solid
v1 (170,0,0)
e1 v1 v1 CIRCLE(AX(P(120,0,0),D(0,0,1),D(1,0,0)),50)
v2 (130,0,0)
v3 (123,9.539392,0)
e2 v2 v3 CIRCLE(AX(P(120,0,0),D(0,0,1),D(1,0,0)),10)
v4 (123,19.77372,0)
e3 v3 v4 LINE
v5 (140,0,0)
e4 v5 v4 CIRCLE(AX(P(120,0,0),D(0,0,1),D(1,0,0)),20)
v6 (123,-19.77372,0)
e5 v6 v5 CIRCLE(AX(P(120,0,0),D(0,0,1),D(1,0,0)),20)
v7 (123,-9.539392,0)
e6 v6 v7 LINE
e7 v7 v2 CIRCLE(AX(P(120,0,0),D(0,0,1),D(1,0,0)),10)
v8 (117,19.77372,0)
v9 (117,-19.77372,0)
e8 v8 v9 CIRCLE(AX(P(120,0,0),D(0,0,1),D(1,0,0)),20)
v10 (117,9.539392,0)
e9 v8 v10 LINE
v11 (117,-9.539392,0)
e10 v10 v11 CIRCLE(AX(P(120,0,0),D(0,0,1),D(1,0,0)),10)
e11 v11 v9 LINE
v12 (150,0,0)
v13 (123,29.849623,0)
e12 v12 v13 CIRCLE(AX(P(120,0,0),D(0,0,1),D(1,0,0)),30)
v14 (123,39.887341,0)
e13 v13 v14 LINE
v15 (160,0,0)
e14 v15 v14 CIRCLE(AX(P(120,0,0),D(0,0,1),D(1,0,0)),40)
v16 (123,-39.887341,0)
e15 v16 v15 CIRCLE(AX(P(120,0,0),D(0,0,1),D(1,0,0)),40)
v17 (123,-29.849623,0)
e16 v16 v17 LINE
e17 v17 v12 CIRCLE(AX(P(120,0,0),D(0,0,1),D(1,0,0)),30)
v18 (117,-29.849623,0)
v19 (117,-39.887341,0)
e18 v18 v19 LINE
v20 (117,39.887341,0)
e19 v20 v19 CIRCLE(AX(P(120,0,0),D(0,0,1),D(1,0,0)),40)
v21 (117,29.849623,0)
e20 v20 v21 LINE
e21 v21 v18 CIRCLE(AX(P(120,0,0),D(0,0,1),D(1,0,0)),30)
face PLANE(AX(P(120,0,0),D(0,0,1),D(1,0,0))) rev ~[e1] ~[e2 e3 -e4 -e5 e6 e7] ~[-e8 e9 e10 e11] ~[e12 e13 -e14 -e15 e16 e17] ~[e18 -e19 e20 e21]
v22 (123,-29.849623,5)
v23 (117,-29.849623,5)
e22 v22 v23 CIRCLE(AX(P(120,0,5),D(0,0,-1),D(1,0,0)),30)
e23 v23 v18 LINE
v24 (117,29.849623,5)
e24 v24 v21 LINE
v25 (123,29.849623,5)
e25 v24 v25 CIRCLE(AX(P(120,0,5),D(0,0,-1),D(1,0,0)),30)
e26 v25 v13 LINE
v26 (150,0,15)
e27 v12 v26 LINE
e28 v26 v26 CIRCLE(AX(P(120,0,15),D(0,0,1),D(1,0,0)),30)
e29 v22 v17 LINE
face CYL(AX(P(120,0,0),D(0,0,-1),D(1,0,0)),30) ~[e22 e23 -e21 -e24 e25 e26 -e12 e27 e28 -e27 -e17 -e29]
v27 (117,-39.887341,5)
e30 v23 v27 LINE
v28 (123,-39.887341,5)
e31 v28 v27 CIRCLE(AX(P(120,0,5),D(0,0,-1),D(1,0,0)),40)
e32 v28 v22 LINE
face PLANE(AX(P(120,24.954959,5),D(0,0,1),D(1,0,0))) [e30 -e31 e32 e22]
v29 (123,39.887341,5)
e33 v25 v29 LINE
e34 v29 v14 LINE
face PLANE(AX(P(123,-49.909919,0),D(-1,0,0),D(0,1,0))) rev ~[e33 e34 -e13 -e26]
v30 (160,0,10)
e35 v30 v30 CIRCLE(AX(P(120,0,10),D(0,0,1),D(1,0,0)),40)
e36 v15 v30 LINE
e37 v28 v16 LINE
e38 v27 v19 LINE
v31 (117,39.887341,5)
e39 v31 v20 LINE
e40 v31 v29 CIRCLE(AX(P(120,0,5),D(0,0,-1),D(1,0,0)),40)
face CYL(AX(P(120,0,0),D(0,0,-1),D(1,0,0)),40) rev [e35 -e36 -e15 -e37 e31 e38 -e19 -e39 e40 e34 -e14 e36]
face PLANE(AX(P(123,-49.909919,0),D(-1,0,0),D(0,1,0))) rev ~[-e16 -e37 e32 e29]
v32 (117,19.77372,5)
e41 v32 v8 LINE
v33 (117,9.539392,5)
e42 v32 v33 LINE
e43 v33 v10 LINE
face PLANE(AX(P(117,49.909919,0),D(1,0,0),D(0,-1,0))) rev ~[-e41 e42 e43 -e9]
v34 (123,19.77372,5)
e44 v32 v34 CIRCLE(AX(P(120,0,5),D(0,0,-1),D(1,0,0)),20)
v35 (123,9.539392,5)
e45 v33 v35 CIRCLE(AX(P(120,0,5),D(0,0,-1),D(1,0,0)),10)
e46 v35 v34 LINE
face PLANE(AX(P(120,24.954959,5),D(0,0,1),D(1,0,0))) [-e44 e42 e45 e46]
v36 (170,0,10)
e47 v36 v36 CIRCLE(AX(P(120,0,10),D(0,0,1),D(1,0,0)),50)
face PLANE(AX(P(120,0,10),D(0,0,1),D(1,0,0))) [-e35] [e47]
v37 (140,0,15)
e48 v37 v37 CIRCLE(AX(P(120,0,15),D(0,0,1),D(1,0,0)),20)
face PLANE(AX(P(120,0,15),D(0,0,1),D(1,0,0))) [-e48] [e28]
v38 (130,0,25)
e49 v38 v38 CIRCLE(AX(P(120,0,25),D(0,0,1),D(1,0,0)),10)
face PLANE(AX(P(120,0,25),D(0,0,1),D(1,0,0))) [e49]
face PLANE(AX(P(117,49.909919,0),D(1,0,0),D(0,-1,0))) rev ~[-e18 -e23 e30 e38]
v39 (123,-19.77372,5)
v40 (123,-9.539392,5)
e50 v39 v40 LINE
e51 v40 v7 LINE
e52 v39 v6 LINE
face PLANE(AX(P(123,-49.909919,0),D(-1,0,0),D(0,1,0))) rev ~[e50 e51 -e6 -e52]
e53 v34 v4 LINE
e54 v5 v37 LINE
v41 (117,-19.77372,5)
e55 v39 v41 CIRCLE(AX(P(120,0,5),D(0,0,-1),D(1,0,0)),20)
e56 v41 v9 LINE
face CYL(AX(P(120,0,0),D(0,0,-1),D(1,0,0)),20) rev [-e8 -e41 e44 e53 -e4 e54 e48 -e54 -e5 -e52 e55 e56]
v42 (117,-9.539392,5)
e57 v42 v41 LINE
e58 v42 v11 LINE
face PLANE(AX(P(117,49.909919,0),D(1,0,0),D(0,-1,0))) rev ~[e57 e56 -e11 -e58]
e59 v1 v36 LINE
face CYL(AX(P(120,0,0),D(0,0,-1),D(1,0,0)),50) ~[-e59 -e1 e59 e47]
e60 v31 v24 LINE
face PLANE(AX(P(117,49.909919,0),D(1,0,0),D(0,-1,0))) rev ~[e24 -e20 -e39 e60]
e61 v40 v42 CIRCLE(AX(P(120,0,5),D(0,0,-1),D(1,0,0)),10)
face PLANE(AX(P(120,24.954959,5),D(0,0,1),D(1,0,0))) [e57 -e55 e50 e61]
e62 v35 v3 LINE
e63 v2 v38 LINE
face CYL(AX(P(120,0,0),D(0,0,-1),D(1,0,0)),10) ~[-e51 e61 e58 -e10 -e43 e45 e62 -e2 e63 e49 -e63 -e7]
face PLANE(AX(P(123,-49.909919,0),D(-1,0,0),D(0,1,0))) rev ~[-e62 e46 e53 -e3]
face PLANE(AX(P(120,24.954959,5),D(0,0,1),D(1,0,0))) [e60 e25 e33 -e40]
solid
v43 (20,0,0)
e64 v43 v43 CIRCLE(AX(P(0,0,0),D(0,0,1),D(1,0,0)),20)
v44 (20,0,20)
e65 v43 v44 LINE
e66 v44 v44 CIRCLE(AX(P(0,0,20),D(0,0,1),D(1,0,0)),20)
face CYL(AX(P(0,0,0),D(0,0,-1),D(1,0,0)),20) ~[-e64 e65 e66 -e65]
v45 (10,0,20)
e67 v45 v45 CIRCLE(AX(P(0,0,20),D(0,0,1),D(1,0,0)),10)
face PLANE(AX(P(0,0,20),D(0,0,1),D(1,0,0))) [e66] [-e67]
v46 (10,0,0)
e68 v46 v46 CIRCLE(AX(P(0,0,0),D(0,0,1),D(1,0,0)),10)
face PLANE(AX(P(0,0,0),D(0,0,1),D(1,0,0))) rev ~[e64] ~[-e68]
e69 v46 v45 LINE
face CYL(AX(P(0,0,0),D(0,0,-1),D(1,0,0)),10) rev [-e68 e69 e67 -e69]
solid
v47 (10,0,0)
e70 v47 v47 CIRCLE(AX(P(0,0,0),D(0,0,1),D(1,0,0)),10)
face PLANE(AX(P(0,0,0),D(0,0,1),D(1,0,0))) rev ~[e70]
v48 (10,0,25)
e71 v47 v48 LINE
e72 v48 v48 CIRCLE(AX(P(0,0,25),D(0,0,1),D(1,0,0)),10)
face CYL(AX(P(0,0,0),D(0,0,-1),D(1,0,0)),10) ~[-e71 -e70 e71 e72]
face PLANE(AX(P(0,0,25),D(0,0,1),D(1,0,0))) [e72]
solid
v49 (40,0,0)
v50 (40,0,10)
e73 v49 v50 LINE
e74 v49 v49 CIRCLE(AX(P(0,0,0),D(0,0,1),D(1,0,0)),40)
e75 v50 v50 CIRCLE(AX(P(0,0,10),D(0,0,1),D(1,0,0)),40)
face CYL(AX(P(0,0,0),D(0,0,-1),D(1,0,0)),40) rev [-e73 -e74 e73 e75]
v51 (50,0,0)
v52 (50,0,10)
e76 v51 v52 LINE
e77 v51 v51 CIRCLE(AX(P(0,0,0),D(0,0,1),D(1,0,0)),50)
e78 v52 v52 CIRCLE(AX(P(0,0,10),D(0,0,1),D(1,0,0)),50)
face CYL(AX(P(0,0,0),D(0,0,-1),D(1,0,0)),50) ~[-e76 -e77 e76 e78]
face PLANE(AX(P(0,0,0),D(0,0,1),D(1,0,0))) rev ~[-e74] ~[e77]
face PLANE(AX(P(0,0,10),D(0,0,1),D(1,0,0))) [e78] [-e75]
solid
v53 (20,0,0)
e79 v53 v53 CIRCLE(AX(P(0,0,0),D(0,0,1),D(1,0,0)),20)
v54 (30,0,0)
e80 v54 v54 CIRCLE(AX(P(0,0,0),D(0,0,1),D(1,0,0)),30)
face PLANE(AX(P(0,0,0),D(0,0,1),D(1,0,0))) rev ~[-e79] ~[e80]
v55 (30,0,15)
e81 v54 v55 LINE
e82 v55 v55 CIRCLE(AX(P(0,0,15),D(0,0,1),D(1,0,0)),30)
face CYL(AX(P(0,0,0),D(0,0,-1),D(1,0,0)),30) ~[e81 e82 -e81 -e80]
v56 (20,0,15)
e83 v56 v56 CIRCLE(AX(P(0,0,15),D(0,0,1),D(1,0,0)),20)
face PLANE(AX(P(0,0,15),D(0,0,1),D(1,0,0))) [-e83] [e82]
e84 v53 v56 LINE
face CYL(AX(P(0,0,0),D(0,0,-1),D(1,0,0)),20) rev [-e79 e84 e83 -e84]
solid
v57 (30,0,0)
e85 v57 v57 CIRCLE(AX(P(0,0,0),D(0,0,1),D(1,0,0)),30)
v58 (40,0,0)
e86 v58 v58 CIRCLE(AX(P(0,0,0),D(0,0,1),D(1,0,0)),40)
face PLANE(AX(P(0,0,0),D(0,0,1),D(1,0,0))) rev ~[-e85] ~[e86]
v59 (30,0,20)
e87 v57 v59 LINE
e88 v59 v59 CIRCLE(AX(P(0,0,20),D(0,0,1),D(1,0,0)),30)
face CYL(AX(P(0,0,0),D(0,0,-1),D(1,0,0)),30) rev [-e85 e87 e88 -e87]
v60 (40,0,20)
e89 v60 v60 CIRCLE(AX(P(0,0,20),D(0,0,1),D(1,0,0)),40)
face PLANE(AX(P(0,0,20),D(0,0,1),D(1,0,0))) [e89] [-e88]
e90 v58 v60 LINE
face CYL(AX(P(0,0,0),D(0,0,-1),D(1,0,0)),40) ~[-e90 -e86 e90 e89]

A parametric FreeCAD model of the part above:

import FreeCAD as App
import Part
import Sketcher
from FreeCAD import Vector
Q = App.Units.Quantity

doc = App.newDocument("Part")
body = doc.addObject("PartDesign::Body", "Body")

# Sketch on XY plane
sketch1 = doc.addObject("Sketcher::SketchObject", "Sketch")
body.addObject(sketch1)
sketch1.AttachmentSupport = (doc.XY_Plane, [""])
sketch1.MapMode = "FlatFace"
sketch1.addGeometry(Part.Circle(Vector(0, 0, 0), Vector(0, 0, 1), 50), False)
sketch1.addGeometry(Part.Circle(Vector(0, 0, 0), Vector(0, 0, 1), 40), False)
sketch1.addConstraint(Sketcher.Constraint("Coincident", 0, 3, -1, 1))
sketch1.addConstraint(Sketcher.Constraint("Coincident", 1, 3, -1, 1))
sketch1.addConstraint(Sketcher.Constraint("Diameter", 0, Q("100 mm")))
sketch1.addConstraint(Sketcher.Constraint("Diameter", 1, Q("80 mm")))
pad1 = doc.addObject("PartDesign::Pad", "Pad")
body.addObject(pad1)
pad1.Profile = sketch1
pad1.Length = 10
body2 = doc.addObject("PartDesign::Body", "Body001")

# Sketch on XY plane
sketch2 = doc.addObject("Sketcher::SketchObject", "Sketch001")
body2.addObject(sketch2)
sketch2.AttachmentSupport = (doc.getObject("XY_Plane001"), [""])
sketch2.MapMode = "FlatFace"
sketch2.addGeometry(Part.Circle(Vector(0, 0, 0), Vector(0, 0, 1), 30), False)
sketch2.addGeometry(Part.Circle(Vector(0, 0, 0), Vector(0, 0, 1), 20), False)
sketch2.addConstraint(Sketcher.Constraint("Coincident", 0, 3, -1, 1))
sketch2.addConstraint(Sketcher.Constraint("Coincident", 1, 3, -1, 1))
sketch2.addConstraint(Sketcher.Constraint("Diameter", 0, Q("60 mm")))
sketch2.addConstraint(Sketcher.Constraint("Diameter", 1, Q("40 mm")))
pad2 = doc.addObject("PartDesign::Pad", "Pad001")
body2.addObject(pad2)
pad2.Profile = sketch2
pad2.Length = 15
body3 = doc.addObject("PartDesign::Body", "Body002")

# Sketch on XY plane
sketch3 = doc.addObject("Sketcher::SketchObject", "Sketch002")
body3.addObject(sketch3)
sketch3.AttachmentSupport = (doc.getObject("XY_Plane002"), [""])
sketch3.MapMode = "FlatFace"
sketch3.addGeometry(Part.Circle(Vector(0, 0, 0), Vector(0, 0, 1), 10), False)
sketch3.addConstraint(Sketcher.Constraint("Coincident", 0, 3, -1, 1))
sketch3.addConstraint(Sketcher.Constraint("Diameter", 0, Q("20 mm")))
pad3 = doc.addObject("PartDesign::Pad", "Pad002")
body3.addObject(pad3)
pad3.Profile = sketch3
pad3.Length = 25
body4 = doc.addObject("PartDesign::Body", "Body003")

# Sketch on XY plane
sketch4 = doc.addObject("Sketcher::SketchObject", "Sketch003")
body4.addObject(sketch4)
sketch4.AttachmentSupport = (doc.getObject("XY_Plane003"), [""])
sketch4.MapMode = "FlatFace"
sketch4.addGeometry(Part.Circle(Vector(120, 0, 0), Vector(0, 0, 1), 50), False)
sketch4.addGeometry(Part.Circle(Vector(120, 0, 0), Vector(0, 0, 1), 40), False)
sketch4.addConstraint(Sketcher.Constraint("Coincident", 1, 3, 0, 3))
sketch4.addConstraint(Sketcher.Constraint("PointOnObject", 0, 3, -1))
sketch4.addConstraint(Sketcher.Constraint("Diameter", 0, Q("100 mm")))
sketch4.addConstraint(Sketcher.Constraint("Diameter", 1, Q("80 mm")))
sketch4.addConstraint(Sketcher.Constraint("DistanceX", -1, 1, 0, 3, Q("120 mm")))
pad4 = doc.addObject("PartDesign::Pad", "Pad003")
body4.addObject(pad4)
pad4.Profile = sketch4
pad4.Length = 10
body5 = doc.addObject("PartDesign::Body", "Body004")

# Sketch on XY plane
sketch5 = doc.addObject("Sketcher::SketchObject", "Sketch004")
body5.addObject(sketch5)
sketch5.AttachmentSupport = (doc.getObject("XY_Plane004"), [""])
sketch5.MapMode = "FlatFace"
sketch5.addGeometry(Part.Circle(Vector(120, 0, 0), Vector(0, 0, 1), 30), False)
sketch5.addGeometry(Part.Circle(Vector(120, 0, 0), Vector(0, 0, 1), 20), False)
sketch5.addConstraint(Sketcher.Constraint("Coincident", 1, 3, 0, 3))
sketch5.addConstraint(Sketcher.Constraint("PointOnObject", 0, 3, -1))
sketch5.addConstraint(Sketcher.Constraint("Diameter", 0, Q("60 mm")))
sketch5.addConstraint(Sketcher.Constraint("Diameter", 1, Q("40 mm")))
sketch5.addConstraint(Sketcher.Constraint("DistanceX", -1, 1, 0, 3, Q("120 mm")))
pad5 = doc.addObject("PartDesign::Pad", "Pad004")
body5.addObject(pad5)
pad5.Profile = sketch5
pad5.Length = 15
body6 = doc.addObject("PartDesign::Body", "Body005")

# Sketch on XY plane
sketch6 = doc.addObject("Sketcher::SketchObject", "Sketch005")
body6.addObject(sketch6)
sketch6.AttachmentSupport = (doc.getObject("XY_Plane005"), [""])
sketch6.MapMode = "FlatFace"
sketch6.addGeometry(Part.Circle(Vector(120, 0, 0), Vector(0, 0, 1), 10), False)
sketch6.addConstraint(Sketcher.Constraint("PointOnObject", 0, 3, -1))
sketch6.addConstraint(Sketcher.Constraint("Diameter", 0, Q("20 mm")))
sketch6.addConstraint(Sketcher.Constraint("DistanceX", -1, 1, 0, 3, Q("120 mm")))
pad6 = doc.addObject("PartDesign::Pad", "Pad005")
body6.addObject(pad6)
pad6.Profile = sketch6
pad6.Length = 25
body4.AllowCompound = True
doc.recompute()

boolean = doc.addObject("PartDesign::Boolean", "Boolean")
body4.addObject(boolean)
boolean.Type = "Fuse"
boolean.addObjects([body5])
doc.recompute()

boolean2 = doc.addObject("PartDesign::Boolean", "Boolean001")
body4.addObject(boolean2)
boolean2.Type = "Fuse"
boolean2.addObjects([body6])

# Sketch on XY plane
sketch7 = doc.addObject("Sketcher::SketchObject", "Sketch006")
body4.addObject(sketch7)
sketch7.AttachmentSupport = (doc.getObject("XY_Plane003"), [""])
sketch7.MapMode = "FlatFace"
sketch7.addGeometry(Part.LineSegment(Vector(117, -50, 0), Vector(123, -50, 0)), False)
sketch7.addGeometry(Part.LineSegment(Vector(123, -50, 0), Vector(123, 50, 0)), False)
sketch7.addGeometry(Part.LineSegment(Vector(123, 50, 0), Vector(117, 50, 0)), False)
sketch7.addGeometry(Part.LineSegment(Vector(117, 50, 0), Vector(117, -50, 0)), False)
sketch7.addConstraint(Sketcher.Constraint("Coincident", 0, 2, 1, 1))
sketch7.addConstraint(Sketcher.Constraint("Coincident", 1, 2, 2, 1))
sketch7.addConstraint(Sketcher.Constraint("Coincident", 2, 2, 3, 1))
sketch7.addConstraint(Sketcher.Constraint("Coincident", 3, 2, 0, 1))
sketch7.addConstraint(Sketcher.Constraint("Horizontal", 0))
sketch7.addConstraint(Sketcher.Constraint("Vertical", 1))
sketch7.addConstraint(Sketcher.Constraint("Horizontal", 2))
sketch7.addConstraint(Sketcher.Constraint("Vertical", 3))
sketch7.addConstraint(Sketcher.Constraint("DistanceX", 0, 1, 0, 2, Q("6 mm")))
sketch7.addConstraint(Sketcher.Constraint("DistanceX", -1, 1, 0, 2, Q("123 mm")))
sketch7.addConstraint(Sketcher.Constraint("DistanceY", 1, 1, 1, 2, Q("99.819837 mm")))
sketch7.addConstraint(Sketcher.Constraint("DistanceY", 0, 2, -1, 1, Q("49.909919 mm")))
pad7 = doc.addObject("PartDesign::Pad", "Pad006")
body4.addObject(pad7)
pad7.Profile = sketch7
pad7.Length = 5
body7 = doc.addObject("PartDesign::Body", "Body006")
body7.AllowCompound = True

# Sketch on XY plane
sketch8 = doc.addObject("Sketcher::SketchObject", "Sketch007")
body7.addObject(sketch8)
sketch8.AttachmentSupport = (doc.getObject("XY_Plane006"), [""])
sketch8.MapMode = "FlatFace"
sketch8.addGeometry(Part.Circle(Vector(0, 0, 0), Vector(0, 0, 1), 40), False)
sketch8.addGeometry(Part.Circle(Vector(0, 0, 0), Vector(0, 0, 1), 30), False)
sketch8.addGeometry(Part.Circle(Vector(0, 0, 0), Vector(0, 0, 1), 20), False)
sketch8.addGeometry(Part.Circle(Vector(0, 0, 0), Vector(0, 0, 1), 10), False)
sketch8.addConstraint(Sketcher.Constraint("Coincident", 0, 3, -1, 1))
sketch8.addConstraint(Sketcher.Constraint("Coincident", 1, 3, -1, 1))
sketch8.addConstraint(Sketcher.Constraint("Coincident", 2, 3, -1, 1))
sketch8.addConstraint(Sketcher.Constraint("Coincident", 3, 3, -1, 1))
sketch8.addConstraint(Sketcher.Constraint("Diameter", 0, Q("80 mm")))
sketch8.addConstraint(Sketcher.Constraint("Diameter", 1, Q("60 mm")))
sketch8.addConstraint(Sketcher.Constraint("Diameter", 2, Q("40 mm")))
sketch8.addConstraint(Sketcher.Constraint("Diameter", 3, Q("20 mm")))
pad8 = doc.addObject("PartDesign::Pad", "Pad007")
body7.addObject(pad8)
pad8.Profile = sketch8
pad8.Length = 20

doc.recompute()
